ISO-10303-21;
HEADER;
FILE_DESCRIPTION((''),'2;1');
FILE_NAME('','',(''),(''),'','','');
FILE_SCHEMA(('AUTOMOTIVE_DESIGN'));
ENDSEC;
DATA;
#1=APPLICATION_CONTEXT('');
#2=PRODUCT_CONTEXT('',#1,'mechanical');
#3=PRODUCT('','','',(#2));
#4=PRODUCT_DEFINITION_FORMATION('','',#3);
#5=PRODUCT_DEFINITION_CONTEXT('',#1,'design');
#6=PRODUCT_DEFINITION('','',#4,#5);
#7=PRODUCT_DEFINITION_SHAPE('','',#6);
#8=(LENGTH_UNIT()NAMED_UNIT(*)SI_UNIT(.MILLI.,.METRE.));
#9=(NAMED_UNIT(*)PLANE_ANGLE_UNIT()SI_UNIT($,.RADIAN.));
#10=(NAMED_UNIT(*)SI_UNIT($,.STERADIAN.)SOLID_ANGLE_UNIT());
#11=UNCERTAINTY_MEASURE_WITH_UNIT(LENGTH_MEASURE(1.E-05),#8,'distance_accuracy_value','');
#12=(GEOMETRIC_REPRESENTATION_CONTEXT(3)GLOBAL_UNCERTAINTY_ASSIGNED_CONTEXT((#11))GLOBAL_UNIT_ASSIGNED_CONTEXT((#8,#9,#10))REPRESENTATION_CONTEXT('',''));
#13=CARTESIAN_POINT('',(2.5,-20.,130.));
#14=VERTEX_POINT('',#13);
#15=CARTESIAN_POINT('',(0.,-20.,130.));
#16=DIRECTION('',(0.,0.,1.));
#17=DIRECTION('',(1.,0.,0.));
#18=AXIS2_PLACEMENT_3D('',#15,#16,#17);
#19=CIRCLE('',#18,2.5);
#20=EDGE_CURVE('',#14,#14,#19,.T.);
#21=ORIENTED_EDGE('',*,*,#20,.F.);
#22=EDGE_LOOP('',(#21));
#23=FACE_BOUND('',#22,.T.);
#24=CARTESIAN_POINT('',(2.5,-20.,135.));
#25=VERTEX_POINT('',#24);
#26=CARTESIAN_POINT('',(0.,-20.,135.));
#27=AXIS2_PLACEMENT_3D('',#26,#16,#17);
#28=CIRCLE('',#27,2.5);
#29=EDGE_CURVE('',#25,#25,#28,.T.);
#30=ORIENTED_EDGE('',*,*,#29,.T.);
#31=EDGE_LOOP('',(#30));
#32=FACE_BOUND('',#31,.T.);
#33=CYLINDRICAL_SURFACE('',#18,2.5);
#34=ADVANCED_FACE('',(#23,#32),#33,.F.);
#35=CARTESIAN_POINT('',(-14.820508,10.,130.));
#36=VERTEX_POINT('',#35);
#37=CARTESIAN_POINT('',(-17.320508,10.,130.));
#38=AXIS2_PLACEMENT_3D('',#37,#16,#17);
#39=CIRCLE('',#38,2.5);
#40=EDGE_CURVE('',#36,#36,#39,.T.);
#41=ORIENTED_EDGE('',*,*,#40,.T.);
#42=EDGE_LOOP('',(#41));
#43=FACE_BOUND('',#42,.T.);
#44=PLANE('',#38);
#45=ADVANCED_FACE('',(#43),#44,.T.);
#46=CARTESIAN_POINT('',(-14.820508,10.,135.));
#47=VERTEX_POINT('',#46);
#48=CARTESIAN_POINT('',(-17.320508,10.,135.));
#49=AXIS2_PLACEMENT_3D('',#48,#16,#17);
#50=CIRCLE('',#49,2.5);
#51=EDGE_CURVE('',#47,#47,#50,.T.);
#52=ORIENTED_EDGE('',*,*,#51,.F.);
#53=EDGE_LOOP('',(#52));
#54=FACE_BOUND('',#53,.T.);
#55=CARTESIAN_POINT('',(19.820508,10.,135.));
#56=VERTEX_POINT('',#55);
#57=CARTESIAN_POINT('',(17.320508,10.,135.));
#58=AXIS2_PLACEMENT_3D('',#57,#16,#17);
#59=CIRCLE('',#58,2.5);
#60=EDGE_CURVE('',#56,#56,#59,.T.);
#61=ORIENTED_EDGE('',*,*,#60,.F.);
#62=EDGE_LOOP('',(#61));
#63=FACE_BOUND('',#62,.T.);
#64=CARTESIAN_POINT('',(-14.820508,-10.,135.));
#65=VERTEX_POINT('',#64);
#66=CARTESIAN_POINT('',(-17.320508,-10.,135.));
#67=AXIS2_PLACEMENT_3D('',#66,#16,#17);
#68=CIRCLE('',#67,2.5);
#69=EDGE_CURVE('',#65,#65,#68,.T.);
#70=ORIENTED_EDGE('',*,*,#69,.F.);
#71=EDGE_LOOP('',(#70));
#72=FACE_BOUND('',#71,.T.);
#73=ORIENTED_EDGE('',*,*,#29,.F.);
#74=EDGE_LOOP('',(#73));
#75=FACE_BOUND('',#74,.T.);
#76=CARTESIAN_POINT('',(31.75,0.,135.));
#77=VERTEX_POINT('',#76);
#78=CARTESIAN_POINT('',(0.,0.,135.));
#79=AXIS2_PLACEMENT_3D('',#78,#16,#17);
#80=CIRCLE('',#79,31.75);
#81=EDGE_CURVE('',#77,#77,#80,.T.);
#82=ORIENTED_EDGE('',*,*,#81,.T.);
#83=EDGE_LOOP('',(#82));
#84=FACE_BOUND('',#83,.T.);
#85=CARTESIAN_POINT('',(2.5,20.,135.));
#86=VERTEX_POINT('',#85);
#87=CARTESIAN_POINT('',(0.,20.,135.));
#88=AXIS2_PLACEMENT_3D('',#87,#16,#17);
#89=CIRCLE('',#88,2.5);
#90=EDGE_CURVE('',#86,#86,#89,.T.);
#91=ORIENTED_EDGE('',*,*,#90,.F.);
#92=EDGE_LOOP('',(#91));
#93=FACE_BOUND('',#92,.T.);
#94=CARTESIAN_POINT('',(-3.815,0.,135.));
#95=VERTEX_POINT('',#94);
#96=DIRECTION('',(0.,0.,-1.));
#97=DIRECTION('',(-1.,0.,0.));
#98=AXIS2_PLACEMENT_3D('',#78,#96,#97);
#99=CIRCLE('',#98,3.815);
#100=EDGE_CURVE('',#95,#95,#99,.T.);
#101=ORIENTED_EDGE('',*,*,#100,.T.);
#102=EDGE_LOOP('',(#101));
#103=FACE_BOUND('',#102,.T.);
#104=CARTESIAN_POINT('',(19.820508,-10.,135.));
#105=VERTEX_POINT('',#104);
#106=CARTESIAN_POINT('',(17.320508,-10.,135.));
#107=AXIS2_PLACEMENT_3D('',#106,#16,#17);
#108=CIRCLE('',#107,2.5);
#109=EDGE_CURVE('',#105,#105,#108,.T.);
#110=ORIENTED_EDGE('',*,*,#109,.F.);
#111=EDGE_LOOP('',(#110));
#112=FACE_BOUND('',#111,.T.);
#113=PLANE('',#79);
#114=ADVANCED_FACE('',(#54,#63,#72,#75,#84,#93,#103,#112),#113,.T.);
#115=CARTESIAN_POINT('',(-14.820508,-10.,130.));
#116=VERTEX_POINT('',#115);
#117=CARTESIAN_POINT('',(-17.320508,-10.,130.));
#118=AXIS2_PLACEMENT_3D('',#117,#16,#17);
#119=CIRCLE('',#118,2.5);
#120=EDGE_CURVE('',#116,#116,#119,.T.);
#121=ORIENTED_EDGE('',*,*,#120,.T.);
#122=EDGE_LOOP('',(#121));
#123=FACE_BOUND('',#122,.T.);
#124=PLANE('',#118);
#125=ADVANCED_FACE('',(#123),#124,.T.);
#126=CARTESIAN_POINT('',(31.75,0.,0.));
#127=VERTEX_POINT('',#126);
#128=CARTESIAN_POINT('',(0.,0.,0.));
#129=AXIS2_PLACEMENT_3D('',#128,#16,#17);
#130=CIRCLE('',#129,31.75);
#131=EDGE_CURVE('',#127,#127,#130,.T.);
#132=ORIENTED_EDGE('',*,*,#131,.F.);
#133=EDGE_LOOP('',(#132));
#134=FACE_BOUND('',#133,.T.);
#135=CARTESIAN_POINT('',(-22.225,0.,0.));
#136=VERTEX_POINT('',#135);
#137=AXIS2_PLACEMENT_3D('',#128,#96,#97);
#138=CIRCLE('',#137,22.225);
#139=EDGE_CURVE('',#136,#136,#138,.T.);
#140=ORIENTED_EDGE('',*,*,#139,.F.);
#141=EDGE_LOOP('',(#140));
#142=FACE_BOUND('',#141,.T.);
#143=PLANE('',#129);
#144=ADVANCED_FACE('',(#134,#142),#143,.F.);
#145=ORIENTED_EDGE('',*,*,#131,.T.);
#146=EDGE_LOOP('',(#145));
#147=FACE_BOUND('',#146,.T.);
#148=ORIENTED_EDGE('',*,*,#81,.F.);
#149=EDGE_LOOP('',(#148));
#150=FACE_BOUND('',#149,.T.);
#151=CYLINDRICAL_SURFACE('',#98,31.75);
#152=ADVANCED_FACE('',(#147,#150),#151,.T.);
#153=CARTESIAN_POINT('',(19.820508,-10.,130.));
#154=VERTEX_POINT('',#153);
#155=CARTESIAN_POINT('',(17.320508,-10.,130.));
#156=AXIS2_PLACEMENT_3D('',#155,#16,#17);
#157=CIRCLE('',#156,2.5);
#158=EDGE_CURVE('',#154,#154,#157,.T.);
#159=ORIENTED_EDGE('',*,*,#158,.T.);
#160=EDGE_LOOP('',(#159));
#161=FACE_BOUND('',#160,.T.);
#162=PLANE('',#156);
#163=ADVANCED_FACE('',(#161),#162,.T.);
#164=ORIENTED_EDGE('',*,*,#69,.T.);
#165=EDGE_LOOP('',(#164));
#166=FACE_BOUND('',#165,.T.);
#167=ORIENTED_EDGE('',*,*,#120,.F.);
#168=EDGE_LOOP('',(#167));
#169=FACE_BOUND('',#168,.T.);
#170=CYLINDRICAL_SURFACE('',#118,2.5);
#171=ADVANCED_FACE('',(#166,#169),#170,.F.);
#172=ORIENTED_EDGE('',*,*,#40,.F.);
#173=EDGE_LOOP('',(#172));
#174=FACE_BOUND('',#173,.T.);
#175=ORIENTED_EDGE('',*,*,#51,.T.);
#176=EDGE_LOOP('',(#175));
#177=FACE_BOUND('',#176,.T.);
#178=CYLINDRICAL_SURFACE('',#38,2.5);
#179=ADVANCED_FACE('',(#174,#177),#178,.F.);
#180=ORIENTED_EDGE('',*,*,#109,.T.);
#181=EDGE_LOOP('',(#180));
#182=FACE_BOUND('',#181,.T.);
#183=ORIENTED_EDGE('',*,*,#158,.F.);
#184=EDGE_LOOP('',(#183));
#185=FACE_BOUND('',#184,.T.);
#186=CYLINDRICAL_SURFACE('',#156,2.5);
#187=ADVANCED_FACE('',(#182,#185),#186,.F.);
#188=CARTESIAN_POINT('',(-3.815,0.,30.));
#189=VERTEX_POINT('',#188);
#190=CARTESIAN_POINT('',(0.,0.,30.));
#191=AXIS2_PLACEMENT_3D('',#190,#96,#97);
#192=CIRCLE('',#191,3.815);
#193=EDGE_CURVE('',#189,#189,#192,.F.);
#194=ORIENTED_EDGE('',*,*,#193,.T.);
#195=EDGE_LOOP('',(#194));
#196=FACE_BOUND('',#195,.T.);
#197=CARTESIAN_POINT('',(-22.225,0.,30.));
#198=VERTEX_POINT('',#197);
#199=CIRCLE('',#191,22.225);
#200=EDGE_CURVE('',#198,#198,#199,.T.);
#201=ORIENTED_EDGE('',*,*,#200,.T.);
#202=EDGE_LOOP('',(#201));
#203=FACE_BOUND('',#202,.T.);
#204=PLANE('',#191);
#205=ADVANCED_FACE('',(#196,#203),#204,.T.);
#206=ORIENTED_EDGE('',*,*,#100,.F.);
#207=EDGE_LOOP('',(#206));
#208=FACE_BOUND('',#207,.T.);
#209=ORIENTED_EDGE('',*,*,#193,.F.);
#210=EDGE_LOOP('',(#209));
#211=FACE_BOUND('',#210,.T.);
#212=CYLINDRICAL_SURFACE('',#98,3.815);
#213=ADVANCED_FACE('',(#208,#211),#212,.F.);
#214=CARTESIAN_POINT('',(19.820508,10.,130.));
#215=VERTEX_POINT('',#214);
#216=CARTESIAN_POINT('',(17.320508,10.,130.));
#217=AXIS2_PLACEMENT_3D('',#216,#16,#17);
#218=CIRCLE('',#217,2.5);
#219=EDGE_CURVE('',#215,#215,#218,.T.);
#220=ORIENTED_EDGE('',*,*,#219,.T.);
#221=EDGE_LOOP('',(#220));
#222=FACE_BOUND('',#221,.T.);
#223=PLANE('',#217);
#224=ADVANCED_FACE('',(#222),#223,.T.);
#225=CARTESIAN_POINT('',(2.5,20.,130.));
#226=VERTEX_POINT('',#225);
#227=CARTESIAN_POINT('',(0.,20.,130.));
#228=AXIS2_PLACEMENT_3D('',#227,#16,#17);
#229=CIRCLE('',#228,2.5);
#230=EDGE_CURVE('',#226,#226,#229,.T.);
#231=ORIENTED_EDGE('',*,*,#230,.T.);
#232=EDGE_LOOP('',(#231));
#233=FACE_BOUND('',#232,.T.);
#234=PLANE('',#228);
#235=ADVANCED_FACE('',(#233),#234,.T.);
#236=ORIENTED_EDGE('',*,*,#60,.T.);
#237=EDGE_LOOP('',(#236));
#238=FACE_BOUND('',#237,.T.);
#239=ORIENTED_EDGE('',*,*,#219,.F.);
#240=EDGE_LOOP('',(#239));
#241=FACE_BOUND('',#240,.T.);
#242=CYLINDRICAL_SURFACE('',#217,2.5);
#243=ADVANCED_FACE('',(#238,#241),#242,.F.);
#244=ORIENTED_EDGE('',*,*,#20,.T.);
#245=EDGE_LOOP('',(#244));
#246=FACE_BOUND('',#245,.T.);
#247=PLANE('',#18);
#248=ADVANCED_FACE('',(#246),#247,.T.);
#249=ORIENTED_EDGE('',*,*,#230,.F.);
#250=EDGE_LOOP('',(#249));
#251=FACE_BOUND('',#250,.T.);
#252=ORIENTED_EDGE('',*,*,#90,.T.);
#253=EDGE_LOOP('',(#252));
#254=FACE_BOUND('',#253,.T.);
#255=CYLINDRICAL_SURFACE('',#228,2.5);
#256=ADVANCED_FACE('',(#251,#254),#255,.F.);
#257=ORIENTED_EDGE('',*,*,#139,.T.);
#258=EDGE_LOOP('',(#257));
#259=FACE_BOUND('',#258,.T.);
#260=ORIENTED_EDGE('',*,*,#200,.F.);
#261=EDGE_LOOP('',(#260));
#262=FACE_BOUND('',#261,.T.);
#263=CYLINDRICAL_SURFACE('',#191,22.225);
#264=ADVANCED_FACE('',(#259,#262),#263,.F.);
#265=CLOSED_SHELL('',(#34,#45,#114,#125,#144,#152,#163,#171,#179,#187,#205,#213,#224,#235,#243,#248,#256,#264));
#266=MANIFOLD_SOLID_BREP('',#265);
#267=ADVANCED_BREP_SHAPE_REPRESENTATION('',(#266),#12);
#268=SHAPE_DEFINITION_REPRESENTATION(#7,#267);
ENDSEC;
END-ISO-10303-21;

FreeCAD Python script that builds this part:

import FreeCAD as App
import Part
import Sketcher

V = App.Vector
Q = App.Units.Quantity

doc = App.newDocument("Part")
body = doc.addObject("PartDesign::Body", "Body")

sketch1 = body.newObject("Sketcher::SketchObject", "Sketch")
sketch1.AttachmentSupport = (doc.getObject("XY_Plane"), [""])
sketch1.MapMode = "FlatFace"
sketch1.addGeometry(Part.Circle(V(0, 0, 0), V(0, 0, 1), 32), False)
sketch1.addConstraint(Sketcher.Constraint("Coincident", 0, 3, -1, 1))
sketch1.addConstraint(Sketcher.Constraint("Diameter", 0, Q("63.5 mm")))
pad1 = body.newObject("PartDesign::Pad", "Pad")
pad1.Profile = sketch1
pad1.Length = 135

sketch2 = body.newObject("Sketcher::SketchObject", "Sketch001")
sketch2.AttachmentSupport = (doc.getObject("XY_Plane"), [""])
sketch2.MapMode = "FlatFace"
sketch2.addGeometry(Part.Circle(V(0, 0, 0), V(0, 0, 1), 3.8), False)
sketch2.addConstraint(Sketcher.Constraint("Coincident", 0, 3, -1, 1))
sketch2.addConstraint(Sketcher.Constraint("Diameter", 0, Q("7.63 mm")))
pocket1 = body.newObject("PartDesign::Pocket", "Pocket")
pocket1.Profile = sketch2
pocket1.Length = 135
pocket1.Reversed = True

sketch3 = body.newObject("Sketcher::SketchObject", "Sketch002")
sketch3.AttachmentSupport = (doc.getObject("XY_Plane"), [""])
sketch3.MapMode = "FlatFace"
sketch3.addGeometry(Part.Circle(V(0, 0, 0), V(0, 0, 1), 22), False)
sketch3.addConstraint(Sketcher.Constraint("Coincident", 0, 3, -1, 1))
sketch3.addConstraint(Sketcher.Constraint("Diameter", 0, Q("44.45 mm")))
pocket2 = body.newObject("PartDesign::Pocket", "Pocket001")
pocket2.Profile = sketch3
pocket2.Length = 30
pocket2.Reversed = True

sketch4 = body.newObject("Sketcher::SketchObject", "Sketch003")
sketch4.AttachmentSupport = (doc.getObject("XY_Plane"), [""])
sketch4.MapMode = "FlatFace"
sketch4.AttachmentOffset = App.Placement(V(0, 0, 135), App.Rotation())
sketch4.addGeometry(Part.Circle(V(0, 20, 0), V(0, 0, 1), 2.5), False)
sketch4.addConstraint(Sketcher.Constraint("PointOnObject", 0, 3, -2))
sketch4.addConstraint(Sketcher.Constraint("Diameter", 0, Q("5 mm")))
sketch4.addConstraint(Sketcher.Constraint("DistanceY", -1, 1, 0, 3, Q("20 mm")))
pocket3 = body.newObject("PartDesign::Pocket", "Pocket002")
pocket3.Profile = sketch4
pocket3.Length = 5

sketch5 = body.newObject("Sketcher::SketchObject", "Sketch004")
sketch5.AttachmentSupport = (doc.getObject("XY_Plane"), [""])
sketch5.MapMode = "FlatFace"
sketch5.AttachmentOffset = App.Placement(V(0, 0, 135), App.Rotation())
sketch5.addGeometry(Part.Circle(V(0, 20, 0), V(0, 0, 1), 2.5), False)
sketch5.addGeometry(Part.Circle(V(17.3, 10, 0), V(0, 0, 1), 2.5), False)
sketch5.addGeometry(Part.Circle(V(17.3, -10, 0), V(0, 0, 1), 2.5), False)
sketch5.addGeometry(Part.Circle(V(0, -20, 0), V(0, 0, 1), 2.5), False)
sketch5.addGeometry(Part.Circle(V(-17.3, -10, 0), V(0, 0, 1), 2.5), False)
sketch5.addGeometry(Part.Circle(V(-17.3, 10, 0), V(0, 0, 1), 2.5), False)
sketch5.addConstraint(Sketcher.Constraint("Equal", 0, 1))
sketch5.addConstraint(Sketcher.Constraint("Equal", 1, 2))
sketch5.addConstraint(Sketcher.Constraint("Equal", 2, 3))
sketch5.addConstraint(Sketcher.Constraint("Equal", 3, 4))
sketch5.addConstraint(Sketcher.Constraint("Equal", 4, 5))
sketch5.addConstraint(Sketcher.Constraint("Symmetric", 0, 3, 3, 3, -1, 1))
sketch5.addConstraint(Sketcher.Constraint("Symmetric", 1, 3, 4, 3, -1, 1))
sketch5.addConstraint(Sketcher.Constraint("Symmetric", 2, 3, 5, 3, -1, 1))
sketch5.addConstraint(Sketcher.Constraint("Symmetric", 2, 3, 4, 3, -2))
sketch5.addConstraint(Sketcher.Constraint("PointOnObject", 0, 3, -2))
sketch5.addConstraint(Sketcher.Constraint("Diameter", 0, Q("5 mm")))
sketch5.addConstraint(Sketcher.Constraint("DistanceY", -1, 1, 0, 3, Q("20 mm")))
sketch5.addConstraint(Sketcher.Constraint("DistanceY", -1, 1, 1, 3, Q("10 mm")))
sketch5.addConstraint(Sketcher.Constraint("DistanceX", -1, 1, 1, 3, Q("17.320508 mm")))
pocket4 = body.newObject("PartDesign::Pocket", "Pocket003")
pocket4.Profile = sketch5
pocket4.Length = 5

doc.recompute()
